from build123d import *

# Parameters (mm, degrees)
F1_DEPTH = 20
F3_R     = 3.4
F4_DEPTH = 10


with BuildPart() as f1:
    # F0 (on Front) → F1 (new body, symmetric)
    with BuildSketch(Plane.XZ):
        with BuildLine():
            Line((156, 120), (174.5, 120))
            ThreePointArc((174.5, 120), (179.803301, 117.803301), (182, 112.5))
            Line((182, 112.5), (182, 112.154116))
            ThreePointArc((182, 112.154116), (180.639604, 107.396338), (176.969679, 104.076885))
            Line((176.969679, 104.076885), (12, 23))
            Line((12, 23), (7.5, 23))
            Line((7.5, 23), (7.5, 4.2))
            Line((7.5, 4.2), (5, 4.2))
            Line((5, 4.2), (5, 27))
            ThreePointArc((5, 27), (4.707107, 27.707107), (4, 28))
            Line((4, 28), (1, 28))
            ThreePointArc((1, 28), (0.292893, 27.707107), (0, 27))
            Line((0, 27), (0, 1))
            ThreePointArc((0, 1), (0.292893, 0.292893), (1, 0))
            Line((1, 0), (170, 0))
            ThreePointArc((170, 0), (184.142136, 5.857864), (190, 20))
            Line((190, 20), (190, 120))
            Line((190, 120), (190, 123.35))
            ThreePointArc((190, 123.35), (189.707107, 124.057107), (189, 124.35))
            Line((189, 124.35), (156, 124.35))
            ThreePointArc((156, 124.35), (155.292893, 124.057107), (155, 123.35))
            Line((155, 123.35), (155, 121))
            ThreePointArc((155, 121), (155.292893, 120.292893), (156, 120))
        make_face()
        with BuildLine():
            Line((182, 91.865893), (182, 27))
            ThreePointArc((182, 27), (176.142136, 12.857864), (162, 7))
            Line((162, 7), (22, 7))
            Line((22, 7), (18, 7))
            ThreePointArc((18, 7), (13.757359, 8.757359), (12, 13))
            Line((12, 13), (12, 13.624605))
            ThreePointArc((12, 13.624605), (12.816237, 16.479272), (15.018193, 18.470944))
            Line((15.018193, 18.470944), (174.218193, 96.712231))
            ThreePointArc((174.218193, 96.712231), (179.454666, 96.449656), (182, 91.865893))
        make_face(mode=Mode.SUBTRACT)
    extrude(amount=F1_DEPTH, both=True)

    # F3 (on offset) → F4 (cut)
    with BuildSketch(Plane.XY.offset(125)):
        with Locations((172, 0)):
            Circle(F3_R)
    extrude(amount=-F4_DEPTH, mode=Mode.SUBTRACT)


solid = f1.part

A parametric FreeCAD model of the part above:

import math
import FreeCAD as App
import Part
import Sketcher

V = App.Vector

doc = App.newDocument("Part")
params = doc.addObject("Spreadsheet::Sheet", "Params")
for row, (alias, value) in enumerate([
    ("sketch1_radius", "9.000002 mm"),
    ("sketch1_radius2", "0.999999 mm"),
    ("sketch1_radius3", "19.999999 mm"),
    ("sketch1_radius4", "5.999999 mm"),
    ("sketch1_radius5", "7.5 mm"),
    ("pad1_length", "40 mm"),
    ("sketch2_diameter", "6.8 mm"),
    ("pocket1_length", "10 mm"),
], start=1):
    params.set(f"A{row}", alias)
    params.set(f"B{row}", "=" + value)
    params.setAlias(f"B{row}", alias)

body = doc.addObject("PartDesign::Body", "Body")

# Sketch on XZ plane
sketch1 = body.newObject("Sketcher::SketchObject", "Sketch")
sketch1.AttachmentSupport = (doc.getObject("XZ_Plane"), [""])
sketch1.MapMode = "FlatFace"
sketch1.addGeometry(Part.LineSegment(V(156, 120, 0), V(174.5, 120, 0)), False)
sketch1.addGeometry(Part.ArcOfCircle(Part.Circle(V(174.5, 112.5, 0), V(0, 0, 1), 7.5), math.radians(0), math.radians(90)), False)
sketch1.addGeometry(Part.LineSegment(V(182, 112.5, 0), V(182, 112.15, 0)), False)
sketch1.addGeometry(Part.ArcOfCircle(Part.Circle(V(173, 112.15, 0), V(0, 0, 1), 9), math.radians(-64), math.radians(0)), False)
sketch1.addGeometry(Part.LineSegment(V(176.97, 104.08, 0), V(12, 23, 0)), False)
sketch1.addGeometry(Part.LineSegment(V(12, 23, 0), V(7.5, 23, 0)), False)
sketch1.addGeometry(Part.LineSegment(V(7.5, 23, 0), V(7.5, 4.2, 0)), False)
sketch1.addGeometry(Part.LineSegment(V(7.5, 4.2, 0), V(5, 4.2, 0)), False)
sketch1.addGeometry(Part.LineSegment(V(5, 4.2, 0), V(5, 27, 0)), False)
sketch1.addGeometry(Part.ArcOfCircle(Part.Circle(V(4, 27, 0), V(0, 0, 1), 1), math.radians(0), math.radians(90)), False)
sketch1.addGeometry(Part.LineSegment(V(4, 28, 0), V(1, 28, 0)), False)
sketch1.addGeometry(Part.ArcOfCircle(Part.Circle(V(1, 27, 0), V(0, 0, 1), 1), math.radians(90), math.radians(180)), False)
sketch1.addGeometry(Part.LineSegment(V(0, 27, 0), V(0, 1, 0)), False)
sketch1.addGeometry(Part.ArcOfCircle(Part.Circle(V(1, 1, 0), V(0, 0, 1), 1), math.radians(180), math.radians(270)), False)
sketch1.addGeometry(Part.LineSegment(V(1, 0, 0), V(170, 0, 0)), False)
sketch1.addGeometry(Part.ArcOfCircle(Part.Circle(V(170, 20, 0), V(0, 0, 1), 20), math.radians(-90), math.radians(0)), False)
sketch1.addGeometry(Part.LineSegment(V(190, 20, 0), V(190, 123.35, 0)), False)
sketch1.addGeometry(Part.ArcOfCircle(Part.Circle(V(189, 123.35, 0), V(0, 0, 1), 1), math.radians(0), math.radians(90)), False)
sketch1.addGeometry(Part.LineSegment(V(189, 124.35, 0), V(156, 124.35, 0)), False)
sketch1.addGeometry(Part.ArcOfCircle(Part.Circle(V(156, 123.35, 0), V(0, 0, 1), 1), math.radians(90), math.radians(180)), False)
sketch1.addGeometry(Part.LineSegment(V(155, 123.35, 0), V(155, 121, 0)), False)
sketch1.addGeometry(Part.ArcOfCircle(Part.Circle(V(156, 121, 0), V(0, 0, 1), 1), math.radians(180), math.radians(270)), False)
sketch1.addGeometry(Part.ArcOfCircle(Part.Circle(V(176.6, 91.87, 0), V(0, 0, 1), 5.4), math.radians(0), math.radians(116)), False)
sketch1.addGeometry(Part.LineSegment(V(182, 91.87, 0), V(182, 27, 0)), False)
sketch1.addGeometry(Part.ArcOfCircle(Part.Circle(V(162, 27, 0), V(0, 0, 1), 20), math.radians(-90), math.radians(0)), False)
sketch1.addGeometry(Part.LineSegment(V(162, 7, 0), V(18, 7, 0)), False)
sketch1.addGeometry(Part.ArcOfCircle(Part.Circle(V(18, 13, 0), V(0, 0, 1), 6), math.radians(180), math.radians(270)), False)
sketch1.addGeometry(Part.LineSegment(V(12, 13, 0), V(12, 13.62, 0)), False)
sketch1.addGeometry(Part.ArcOfCircle(Part.Circle(V(17.4, 13.62, 0), V(0, 0, 1), 5.4), math.radians(116), math.radians(180)), False)
sketch1.addGeometry(Part.LineSegment(V(15.02, 18.47, 0), V(174.22, 96.71, 0)), False)
sketch1.addConstraint(Sketcher.Constraint("Tangent", 0, 2, 1, 2))
sketch1.addConstraint(Sketcher.Constraint("Tangent", 1, 1, 2, 1))
sketch1.addConstraint(Sketcher.Constraint("Tangent", 2, 2, 3, 2))
sketch1.addConstraint(Sketcher.Constraint("Tangent", 3, 1, 4, 1))
sketch1.addConstraint(Sketcher.Constraint("Coincident", 4, 2, 5, 1))
sketch1.addConstraint(Sketcher.Constraint("Coincident", 5, 2, 6, 1))
sketch1.addConstraint(Sketcher.Constraint("Coincident", 6, 2, 7, 1))
sketch1.addConstraint(Sketcher.Constraint("Coincident", 7, 2, 8, 1))
sketch1.addConstraint(Sketcher.Constraint("Tangent", 8, 2, 9, 1))
sketch1.addConstraint(Sketcher.Constraint("Tangent", 9, 2, 10, 1))
sketch1.addConstraint(Sketcher.Constraint("Tangent", 10, 2, 11, 1))
sketch1.addConstraint(Sketcher.Constraint("Tangent", 11, 2, 12, 1))
sketch1.addConstraint(Sketcher.Constraint("Tangent", 12, 2, 13, 1))
sketch1.addConstraint(Sketcher.Constraint("Tangent", 13, 2, 14, 1))
sketch1.addConstraint(Sketcher.Constraint("Tangent", 14, 2, 15, 1))
sketch1.addConstraint(Sketcher.Constraint("Tangent", 15, 2, 16, 1))
sketch1.addConstraint(Sketcher.Constraint("Tangent", 16, 2, 17, 1))
sketch1.addConstraint(Sketcher.Constraint("Tangent", 17, 2, 18, 1))
sketch1.addConstraint(Sketcher.Constraint("Tangent", 18, 2, 19, 1))
sketch1.addConstraint(Sketcher.Constraint("Tangent", 19, 2, 20, 1))
sketch1.addConstraint(Sketcher.Constraint("Tangent", 20, 2, 21, 1))
sketch1.addConstraint(Sketcher.Constraint("Tangent", 21, 2, 0, 1))
sketch1.addConstraint(Sketcher.Constraint("Tangent", 22, 1, 23, 1))
sketch1.addConstraint(Sketcher.Constraint("Tangent", 23, 2, 24, 2))
sketch1.addConstraint(Sketcher.Constraint("Tangent", 24, 1, 25, 1))
sketch1.addConstraint(Sketcher.Constraint("Tangent", 25, 2, 26, 2))
sketch1.addConstraint(Sketcher.Constraint("Tangent", 26, 1, 27, 1))
sketch1.addConstraint(Sketcher.Constraint("Tangent", 27, 2, 28, 2))
sketch1.addConstraint(Sketcher.Constraint("Tangent", 28, 1, 29, 1))
sketch1.addConstraint(Sketcher.Constraint("Tangent", 29, 2, 22, 2))
sketch1.addConstraint(Sketcher.Constraint("Horizontal", 0))
sketch1.addConstraint(Sketcher.Constraint("Vertical", 2))
sketch1.addConstraint(Sketcher.Constraint("Horizontal", 5))
sketch1.addConstraint(Sketcher.Constraint("Vertical", 6))
sketch1.addConstraint(Sketcher.Constraint("Horizontal", 7))
sketch1.addConstraint(Sketcher.Constraint("Vertical", 8))
sketch1.addConstraint(Sketcher.Constraint("Horizontal", 10))
sketch1.addConstraint(Sketcher.Constraint("Vertical", 12))
sketch1.addConstraint(Sketcher.Constraint("Horizontal", 14))
sketch1.addConstraint(Sketcher.Constraint("Vertical", 16))
sketch1.addConstraint(Sketcher.Constraint("Horizontal", 18))
sketch1.addConstraint(Sketcher.Constraint("Vertical", 20))
sketch1.addConstraint(Sketcher.Constraint("Vertical", 23))
sketch1.addConstraint(Sketcher.Constraint("Horizontal", 25))
sketch1.addConstraint(Sketcher.Constraint("Vertical", 27))
sketch1.addConstraint(Sketcher.Constraint("Equal", 9, 11))
sketch1.addConstraint(Sketcher.Constraint("Equal", 11, 13))
sketch1.addConstraint(Sketcher.Constraint("Equal", 13, 17))
sketch1.addConstraint(Sketcher.Constraint("Equal", 17, 19))
sketch1.addConstraint(Sketcher.Constraint("Equal", 19, 21))
sketch1.addConstraint(Sketcher.Constraint("Equal", 15, 24))
sketch1.addConstraint(Sketcher.Constraint("Equal", 22, 28))
sketch1.addConstraint(Sketcher.Constraint("PointOnObject", 11, 2, -2))
sketch1.addConstraint(Sketcher.Constraint("PointOnObject", 13, 2, -1))
sketch1.addConstraint(Sketcher.Constraint("Parallel", 4, 29))
sketch1.addConstraint(Sketcher.Constraint("Horizontal", 24, 3, 8, 2))
sketch1.addConstraint(Sketcher.Constraint("Vertical", 2, 2, 22, 1))
sketch1.addConstraint(Sketcher.Constraint("Vertical", 4, 2, 26, 1))
sketch1.addConstraint(Sketcher.Constraint("Radius", 3, 9.000002))
sketch1.addConstraint(Sketcher.Constraint("Radius", 9, 0.999999))
sketch1.addConstraint(Sketcher.Constraint("Radius", 15, 19.999999))
sketch1.addConstraint(Sketcher.Constraint("Radius", 26, 5.999999))
sketch1.addConstraint(Sketcher.Constraint("Radius", 1, 7.5))
sketch1.addConstraint(Sketcher.Constraint("Radius", 22, 5.4))
sketch1.addConstraint(Sketcher.Constraint("DistanceX", 10, 2, 10, 1, 3.0))
sketch1.addConstraint(Sketcher.Constraint("DistanceX", 14, 1, 14, 2, 169.0))
sketch1.addConstraint(Sketcher.Constraint("DistanceX", 18, 2, 18, 1, 33.0))
sketch1.addConstraint(Sketcher.Constraint("DistanceX", 25, 2, 25, 1, 144.0))
sketch1.addConstraint(Sketcher.Constraint("DistanceY", 12, 2, 12, 1, 26.0))
sketch1.addConstraint(Sketcher.Constraint("DistanceX", 0, 1, 0, 2, 18.5))
sketch1.addConstraint(Sketcher.Constraint("DistanceX", 5, 2, 5, 1, 4.5))
sketch1.addConstraint(Sketcher.Constraint("DistanceY", 6, 2, 6, 1, 18.8))
sketch1.addConstraint(Sketcher.Constraint("DistanceY", 8, 1, 8, 2, 22.8))
sketch1.addConstraint(Sketcher.Constraint("DistanceY", -1, 1, 21, 3, 120.999999))
sketch1.addConstraint(Sketcher.Constraint("DistanceY", 16, 1, 16, 2, 103.35))
sketch1.addConstraint(Sketcher.Constraint("Distance", 29, 177.387539))
sketch1.addConstraint(Sketcher.Constraint("DistanceY", 23, 2, 23, 1, 64.865893))
sketch1.setExpression("Constraints[58]", "Params.sketch1_radius")
sketch1.setExpression("Constraints[59]", "Params.sketch1_radius2")
sketch1.setExpression("Constraints[60]", "Params.sketch1_radius3")
sketch1.setExpression("Constraints[61]", "Params.sketch1_radius4")
sketch1.setExpression("Constraints[62]", "Params.sketch1_radius5")
pad1 = body.newObject("PartDesign::Pad", "Pad")
pad1.Profile = sketch1
pad1.setExpression("Length", "Params.pad1_length")
pad1.Midplane = True

# Sketch on XY plane
sketch2 = body.newObject("Sketcher::SketchObject", "Sketch001")
sketch2.AttachmentSupport = (doc.getObject("XY_Plane"), [""])
sketch2.MapMode = "FlatFace"
sketch2.AttachmentOffset = App.Placement(V(0, 0, 125), App.Rotation())
sketch2.addGeometry(Part.Circle(V(172, 0, 0), V(0, 0, 1), 3.4), False)
sketch2.addConstraint(Sketcher.Constraint("PointOnObject", 0, 3, -1))
sketch2.addConstraint(Sketcher.Constraint("Diameter", 0, 6.8))
sketch2.addConstraint(Sketcher.Constraint("DistanceX", -1, 1, 0, 3, 172.0))
sketch2.setExpression("Constraints[1]", "Params.sketch2_diameter")
pocket1 = body.newObject("PartDesign::Pocket", "Pocket")
pocket1.Profile = sketch2
pocket1.setExpression("Length", "Params.pocket1_length")

doc.recompute()
